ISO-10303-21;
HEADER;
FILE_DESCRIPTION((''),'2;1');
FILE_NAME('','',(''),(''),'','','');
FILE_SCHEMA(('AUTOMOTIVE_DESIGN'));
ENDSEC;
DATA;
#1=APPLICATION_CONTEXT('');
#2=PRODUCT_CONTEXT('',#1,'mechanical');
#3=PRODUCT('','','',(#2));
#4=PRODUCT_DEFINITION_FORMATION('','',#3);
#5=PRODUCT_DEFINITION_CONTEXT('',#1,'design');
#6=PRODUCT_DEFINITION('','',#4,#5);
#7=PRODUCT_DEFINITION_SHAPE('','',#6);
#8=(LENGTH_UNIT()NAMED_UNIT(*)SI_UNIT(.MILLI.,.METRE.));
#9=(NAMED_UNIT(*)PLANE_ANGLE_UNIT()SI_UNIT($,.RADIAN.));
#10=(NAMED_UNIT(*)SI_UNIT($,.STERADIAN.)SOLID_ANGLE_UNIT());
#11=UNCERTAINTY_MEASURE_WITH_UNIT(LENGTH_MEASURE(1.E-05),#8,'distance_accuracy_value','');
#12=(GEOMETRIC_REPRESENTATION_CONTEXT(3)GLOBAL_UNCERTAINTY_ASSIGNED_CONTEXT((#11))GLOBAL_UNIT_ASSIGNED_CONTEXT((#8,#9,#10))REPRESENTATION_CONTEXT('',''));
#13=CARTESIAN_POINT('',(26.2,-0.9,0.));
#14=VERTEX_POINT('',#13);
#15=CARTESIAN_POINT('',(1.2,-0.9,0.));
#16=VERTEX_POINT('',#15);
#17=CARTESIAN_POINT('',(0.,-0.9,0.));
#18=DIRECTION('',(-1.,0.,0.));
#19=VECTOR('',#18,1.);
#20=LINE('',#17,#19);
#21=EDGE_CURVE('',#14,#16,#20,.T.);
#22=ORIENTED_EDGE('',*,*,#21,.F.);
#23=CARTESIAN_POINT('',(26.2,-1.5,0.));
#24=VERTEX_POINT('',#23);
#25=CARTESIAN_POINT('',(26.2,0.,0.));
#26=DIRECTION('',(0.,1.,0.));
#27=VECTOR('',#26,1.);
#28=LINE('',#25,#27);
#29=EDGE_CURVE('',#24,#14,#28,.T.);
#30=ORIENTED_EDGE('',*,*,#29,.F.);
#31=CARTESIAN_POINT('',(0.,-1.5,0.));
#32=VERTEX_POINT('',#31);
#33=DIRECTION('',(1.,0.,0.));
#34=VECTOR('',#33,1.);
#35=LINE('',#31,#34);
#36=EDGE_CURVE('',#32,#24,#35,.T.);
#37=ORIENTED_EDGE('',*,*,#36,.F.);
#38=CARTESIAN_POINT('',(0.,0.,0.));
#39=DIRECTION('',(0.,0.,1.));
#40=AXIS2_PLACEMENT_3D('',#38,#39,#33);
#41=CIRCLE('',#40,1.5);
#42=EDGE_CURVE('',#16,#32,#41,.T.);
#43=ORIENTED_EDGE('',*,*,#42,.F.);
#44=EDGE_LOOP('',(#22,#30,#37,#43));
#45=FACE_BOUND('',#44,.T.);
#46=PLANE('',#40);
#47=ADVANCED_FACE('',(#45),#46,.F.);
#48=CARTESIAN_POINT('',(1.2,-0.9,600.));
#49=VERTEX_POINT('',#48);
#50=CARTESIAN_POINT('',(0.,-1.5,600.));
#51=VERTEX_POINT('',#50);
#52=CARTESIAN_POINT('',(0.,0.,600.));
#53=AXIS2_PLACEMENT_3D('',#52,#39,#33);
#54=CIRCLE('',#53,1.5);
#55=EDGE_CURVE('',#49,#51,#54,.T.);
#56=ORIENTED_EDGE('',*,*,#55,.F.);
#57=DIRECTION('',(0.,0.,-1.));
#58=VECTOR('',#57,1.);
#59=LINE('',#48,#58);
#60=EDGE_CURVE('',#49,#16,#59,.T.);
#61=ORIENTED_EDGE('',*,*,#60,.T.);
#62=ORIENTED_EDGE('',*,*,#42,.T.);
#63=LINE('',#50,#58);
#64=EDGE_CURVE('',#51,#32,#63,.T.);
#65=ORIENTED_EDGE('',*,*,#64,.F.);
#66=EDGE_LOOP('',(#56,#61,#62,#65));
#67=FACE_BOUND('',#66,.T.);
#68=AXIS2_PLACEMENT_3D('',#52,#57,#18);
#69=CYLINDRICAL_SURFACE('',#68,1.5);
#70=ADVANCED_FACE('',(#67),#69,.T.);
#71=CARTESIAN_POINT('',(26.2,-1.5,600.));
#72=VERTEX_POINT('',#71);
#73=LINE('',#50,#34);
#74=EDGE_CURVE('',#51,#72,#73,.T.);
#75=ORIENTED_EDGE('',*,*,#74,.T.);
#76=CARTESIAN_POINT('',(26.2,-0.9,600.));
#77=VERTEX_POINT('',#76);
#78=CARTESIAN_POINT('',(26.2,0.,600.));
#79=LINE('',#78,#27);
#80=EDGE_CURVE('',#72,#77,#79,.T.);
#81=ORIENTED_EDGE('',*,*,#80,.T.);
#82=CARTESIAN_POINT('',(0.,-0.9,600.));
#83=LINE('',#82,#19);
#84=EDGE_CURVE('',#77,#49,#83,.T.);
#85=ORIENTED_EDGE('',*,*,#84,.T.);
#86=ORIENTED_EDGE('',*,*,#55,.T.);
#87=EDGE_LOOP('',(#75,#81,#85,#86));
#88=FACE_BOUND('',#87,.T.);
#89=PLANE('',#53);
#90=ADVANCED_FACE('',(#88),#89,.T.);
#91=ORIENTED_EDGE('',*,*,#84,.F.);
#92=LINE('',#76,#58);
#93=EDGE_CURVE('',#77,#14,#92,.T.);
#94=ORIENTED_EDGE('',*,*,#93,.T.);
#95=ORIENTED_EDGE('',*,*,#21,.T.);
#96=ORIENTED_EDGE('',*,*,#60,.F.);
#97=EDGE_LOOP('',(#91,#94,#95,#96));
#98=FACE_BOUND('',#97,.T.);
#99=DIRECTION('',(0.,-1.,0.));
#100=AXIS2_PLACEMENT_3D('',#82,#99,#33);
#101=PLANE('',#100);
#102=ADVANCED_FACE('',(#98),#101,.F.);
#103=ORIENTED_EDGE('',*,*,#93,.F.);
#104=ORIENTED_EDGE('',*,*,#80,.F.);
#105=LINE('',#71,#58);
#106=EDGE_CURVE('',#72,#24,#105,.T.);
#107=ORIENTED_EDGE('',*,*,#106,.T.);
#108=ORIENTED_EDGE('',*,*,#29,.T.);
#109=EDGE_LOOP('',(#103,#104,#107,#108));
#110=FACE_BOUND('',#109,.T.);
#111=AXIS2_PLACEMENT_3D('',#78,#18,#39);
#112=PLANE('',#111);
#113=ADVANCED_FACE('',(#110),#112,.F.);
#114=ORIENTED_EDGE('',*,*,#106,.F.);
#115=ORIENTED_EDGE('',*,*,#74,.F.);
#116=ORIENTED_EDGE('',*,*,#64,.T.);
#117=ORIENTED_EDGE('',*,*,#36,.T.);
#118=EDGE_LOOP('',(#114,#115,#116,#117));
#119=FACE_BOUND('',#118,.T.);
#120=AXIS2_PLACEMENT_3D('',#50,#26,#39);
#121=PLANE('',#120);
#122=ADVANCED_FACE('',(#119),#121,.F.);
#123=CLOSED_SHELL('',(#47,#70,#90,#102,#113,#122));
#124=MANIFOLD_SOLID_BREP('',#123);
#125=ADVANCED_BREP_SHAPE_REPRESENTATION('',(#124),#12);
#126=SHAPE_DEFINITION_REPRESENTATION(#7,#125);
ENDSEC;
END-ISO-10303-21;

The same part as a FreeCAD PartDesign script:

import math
import FreeCAD as App
import Part
import Sketcher

V = App.Vector
Q = App.Units.Quantity

doc = App.newDocument("Part")
body = doc.addObject("PartDesign::Body", "Body")

# Sketch on XY plane
sketch1 = doc.addObject("Sketcher::SketchObject", "Sketch")
body.addObject(sketch1)
sketch1.AttachmentSupport = (doc.XY_Plane, [""])
sketch1.MapMode = "FlatFace"
sketch1.addGeometry(Part.LineSegment(V(26.2, -0.9, 0), V(1.2, -0.9, 0)), False)
sketch1.addGeometry(Part.ArcOfCircle(Part.Circle(V(0, 0, 0), V(0, 0, 1), 1.5), math.radians(-37), math.radians(270)), False)
sketch1.addGeometry(Part.LineSegment(V(0, -1.5, 0), V(26.2, -1.5, 0)), False)
sketch1.addGeometry(Part.LineSegment(V(26.2, -1.5, 0), V(26.2, -0.9, 0)), False)
sketch1.addConstraint(Sketcher.Constraint("Coincident", 0, 2, 1, 1))
sketch1.addConstraint(Sketcher.Constraint("Tangent", 1, 2, 2, 1))
sketch1.addConstraint(Sketcher.Constraint("Coincident", 2, 2, 3, 1))
sketch1.addConstraint(Sketcher.Constraint("Coincident", 3, 2, 0, 1))
sketch1.addConstraint(Sketcher.Constraint("Horizontal", 0))
sketch1.addConstraint(Sketcher.Constraint("Horizontal", 2))
sketch1.addConstraint(Sketcher.Constraint("Vertical", 3))
sketch1.addConstraint(Sketcher.Constraint("Coincident", 1, 3, -1, 1))
sketch1.addConstraint(Sketcher.Constraint("Radius", 1, Q("1.5 mm")))
sketch1.addConstraint(Sketcher.Constraint("DistanceX", 0, 2, 0, 1, Q("25 mm")))
sketch1.addConstraint(Sketcher.Constraint("DistanceX", 2, 1, 2, 2, Q("26.2 mm")))
pad1 = doc.addObject("PartDesign::Pad", "Pad")
body.addObject(pad1)
pad1.Profile = sketch1
pad1.Length = 600

doc.recompute()
